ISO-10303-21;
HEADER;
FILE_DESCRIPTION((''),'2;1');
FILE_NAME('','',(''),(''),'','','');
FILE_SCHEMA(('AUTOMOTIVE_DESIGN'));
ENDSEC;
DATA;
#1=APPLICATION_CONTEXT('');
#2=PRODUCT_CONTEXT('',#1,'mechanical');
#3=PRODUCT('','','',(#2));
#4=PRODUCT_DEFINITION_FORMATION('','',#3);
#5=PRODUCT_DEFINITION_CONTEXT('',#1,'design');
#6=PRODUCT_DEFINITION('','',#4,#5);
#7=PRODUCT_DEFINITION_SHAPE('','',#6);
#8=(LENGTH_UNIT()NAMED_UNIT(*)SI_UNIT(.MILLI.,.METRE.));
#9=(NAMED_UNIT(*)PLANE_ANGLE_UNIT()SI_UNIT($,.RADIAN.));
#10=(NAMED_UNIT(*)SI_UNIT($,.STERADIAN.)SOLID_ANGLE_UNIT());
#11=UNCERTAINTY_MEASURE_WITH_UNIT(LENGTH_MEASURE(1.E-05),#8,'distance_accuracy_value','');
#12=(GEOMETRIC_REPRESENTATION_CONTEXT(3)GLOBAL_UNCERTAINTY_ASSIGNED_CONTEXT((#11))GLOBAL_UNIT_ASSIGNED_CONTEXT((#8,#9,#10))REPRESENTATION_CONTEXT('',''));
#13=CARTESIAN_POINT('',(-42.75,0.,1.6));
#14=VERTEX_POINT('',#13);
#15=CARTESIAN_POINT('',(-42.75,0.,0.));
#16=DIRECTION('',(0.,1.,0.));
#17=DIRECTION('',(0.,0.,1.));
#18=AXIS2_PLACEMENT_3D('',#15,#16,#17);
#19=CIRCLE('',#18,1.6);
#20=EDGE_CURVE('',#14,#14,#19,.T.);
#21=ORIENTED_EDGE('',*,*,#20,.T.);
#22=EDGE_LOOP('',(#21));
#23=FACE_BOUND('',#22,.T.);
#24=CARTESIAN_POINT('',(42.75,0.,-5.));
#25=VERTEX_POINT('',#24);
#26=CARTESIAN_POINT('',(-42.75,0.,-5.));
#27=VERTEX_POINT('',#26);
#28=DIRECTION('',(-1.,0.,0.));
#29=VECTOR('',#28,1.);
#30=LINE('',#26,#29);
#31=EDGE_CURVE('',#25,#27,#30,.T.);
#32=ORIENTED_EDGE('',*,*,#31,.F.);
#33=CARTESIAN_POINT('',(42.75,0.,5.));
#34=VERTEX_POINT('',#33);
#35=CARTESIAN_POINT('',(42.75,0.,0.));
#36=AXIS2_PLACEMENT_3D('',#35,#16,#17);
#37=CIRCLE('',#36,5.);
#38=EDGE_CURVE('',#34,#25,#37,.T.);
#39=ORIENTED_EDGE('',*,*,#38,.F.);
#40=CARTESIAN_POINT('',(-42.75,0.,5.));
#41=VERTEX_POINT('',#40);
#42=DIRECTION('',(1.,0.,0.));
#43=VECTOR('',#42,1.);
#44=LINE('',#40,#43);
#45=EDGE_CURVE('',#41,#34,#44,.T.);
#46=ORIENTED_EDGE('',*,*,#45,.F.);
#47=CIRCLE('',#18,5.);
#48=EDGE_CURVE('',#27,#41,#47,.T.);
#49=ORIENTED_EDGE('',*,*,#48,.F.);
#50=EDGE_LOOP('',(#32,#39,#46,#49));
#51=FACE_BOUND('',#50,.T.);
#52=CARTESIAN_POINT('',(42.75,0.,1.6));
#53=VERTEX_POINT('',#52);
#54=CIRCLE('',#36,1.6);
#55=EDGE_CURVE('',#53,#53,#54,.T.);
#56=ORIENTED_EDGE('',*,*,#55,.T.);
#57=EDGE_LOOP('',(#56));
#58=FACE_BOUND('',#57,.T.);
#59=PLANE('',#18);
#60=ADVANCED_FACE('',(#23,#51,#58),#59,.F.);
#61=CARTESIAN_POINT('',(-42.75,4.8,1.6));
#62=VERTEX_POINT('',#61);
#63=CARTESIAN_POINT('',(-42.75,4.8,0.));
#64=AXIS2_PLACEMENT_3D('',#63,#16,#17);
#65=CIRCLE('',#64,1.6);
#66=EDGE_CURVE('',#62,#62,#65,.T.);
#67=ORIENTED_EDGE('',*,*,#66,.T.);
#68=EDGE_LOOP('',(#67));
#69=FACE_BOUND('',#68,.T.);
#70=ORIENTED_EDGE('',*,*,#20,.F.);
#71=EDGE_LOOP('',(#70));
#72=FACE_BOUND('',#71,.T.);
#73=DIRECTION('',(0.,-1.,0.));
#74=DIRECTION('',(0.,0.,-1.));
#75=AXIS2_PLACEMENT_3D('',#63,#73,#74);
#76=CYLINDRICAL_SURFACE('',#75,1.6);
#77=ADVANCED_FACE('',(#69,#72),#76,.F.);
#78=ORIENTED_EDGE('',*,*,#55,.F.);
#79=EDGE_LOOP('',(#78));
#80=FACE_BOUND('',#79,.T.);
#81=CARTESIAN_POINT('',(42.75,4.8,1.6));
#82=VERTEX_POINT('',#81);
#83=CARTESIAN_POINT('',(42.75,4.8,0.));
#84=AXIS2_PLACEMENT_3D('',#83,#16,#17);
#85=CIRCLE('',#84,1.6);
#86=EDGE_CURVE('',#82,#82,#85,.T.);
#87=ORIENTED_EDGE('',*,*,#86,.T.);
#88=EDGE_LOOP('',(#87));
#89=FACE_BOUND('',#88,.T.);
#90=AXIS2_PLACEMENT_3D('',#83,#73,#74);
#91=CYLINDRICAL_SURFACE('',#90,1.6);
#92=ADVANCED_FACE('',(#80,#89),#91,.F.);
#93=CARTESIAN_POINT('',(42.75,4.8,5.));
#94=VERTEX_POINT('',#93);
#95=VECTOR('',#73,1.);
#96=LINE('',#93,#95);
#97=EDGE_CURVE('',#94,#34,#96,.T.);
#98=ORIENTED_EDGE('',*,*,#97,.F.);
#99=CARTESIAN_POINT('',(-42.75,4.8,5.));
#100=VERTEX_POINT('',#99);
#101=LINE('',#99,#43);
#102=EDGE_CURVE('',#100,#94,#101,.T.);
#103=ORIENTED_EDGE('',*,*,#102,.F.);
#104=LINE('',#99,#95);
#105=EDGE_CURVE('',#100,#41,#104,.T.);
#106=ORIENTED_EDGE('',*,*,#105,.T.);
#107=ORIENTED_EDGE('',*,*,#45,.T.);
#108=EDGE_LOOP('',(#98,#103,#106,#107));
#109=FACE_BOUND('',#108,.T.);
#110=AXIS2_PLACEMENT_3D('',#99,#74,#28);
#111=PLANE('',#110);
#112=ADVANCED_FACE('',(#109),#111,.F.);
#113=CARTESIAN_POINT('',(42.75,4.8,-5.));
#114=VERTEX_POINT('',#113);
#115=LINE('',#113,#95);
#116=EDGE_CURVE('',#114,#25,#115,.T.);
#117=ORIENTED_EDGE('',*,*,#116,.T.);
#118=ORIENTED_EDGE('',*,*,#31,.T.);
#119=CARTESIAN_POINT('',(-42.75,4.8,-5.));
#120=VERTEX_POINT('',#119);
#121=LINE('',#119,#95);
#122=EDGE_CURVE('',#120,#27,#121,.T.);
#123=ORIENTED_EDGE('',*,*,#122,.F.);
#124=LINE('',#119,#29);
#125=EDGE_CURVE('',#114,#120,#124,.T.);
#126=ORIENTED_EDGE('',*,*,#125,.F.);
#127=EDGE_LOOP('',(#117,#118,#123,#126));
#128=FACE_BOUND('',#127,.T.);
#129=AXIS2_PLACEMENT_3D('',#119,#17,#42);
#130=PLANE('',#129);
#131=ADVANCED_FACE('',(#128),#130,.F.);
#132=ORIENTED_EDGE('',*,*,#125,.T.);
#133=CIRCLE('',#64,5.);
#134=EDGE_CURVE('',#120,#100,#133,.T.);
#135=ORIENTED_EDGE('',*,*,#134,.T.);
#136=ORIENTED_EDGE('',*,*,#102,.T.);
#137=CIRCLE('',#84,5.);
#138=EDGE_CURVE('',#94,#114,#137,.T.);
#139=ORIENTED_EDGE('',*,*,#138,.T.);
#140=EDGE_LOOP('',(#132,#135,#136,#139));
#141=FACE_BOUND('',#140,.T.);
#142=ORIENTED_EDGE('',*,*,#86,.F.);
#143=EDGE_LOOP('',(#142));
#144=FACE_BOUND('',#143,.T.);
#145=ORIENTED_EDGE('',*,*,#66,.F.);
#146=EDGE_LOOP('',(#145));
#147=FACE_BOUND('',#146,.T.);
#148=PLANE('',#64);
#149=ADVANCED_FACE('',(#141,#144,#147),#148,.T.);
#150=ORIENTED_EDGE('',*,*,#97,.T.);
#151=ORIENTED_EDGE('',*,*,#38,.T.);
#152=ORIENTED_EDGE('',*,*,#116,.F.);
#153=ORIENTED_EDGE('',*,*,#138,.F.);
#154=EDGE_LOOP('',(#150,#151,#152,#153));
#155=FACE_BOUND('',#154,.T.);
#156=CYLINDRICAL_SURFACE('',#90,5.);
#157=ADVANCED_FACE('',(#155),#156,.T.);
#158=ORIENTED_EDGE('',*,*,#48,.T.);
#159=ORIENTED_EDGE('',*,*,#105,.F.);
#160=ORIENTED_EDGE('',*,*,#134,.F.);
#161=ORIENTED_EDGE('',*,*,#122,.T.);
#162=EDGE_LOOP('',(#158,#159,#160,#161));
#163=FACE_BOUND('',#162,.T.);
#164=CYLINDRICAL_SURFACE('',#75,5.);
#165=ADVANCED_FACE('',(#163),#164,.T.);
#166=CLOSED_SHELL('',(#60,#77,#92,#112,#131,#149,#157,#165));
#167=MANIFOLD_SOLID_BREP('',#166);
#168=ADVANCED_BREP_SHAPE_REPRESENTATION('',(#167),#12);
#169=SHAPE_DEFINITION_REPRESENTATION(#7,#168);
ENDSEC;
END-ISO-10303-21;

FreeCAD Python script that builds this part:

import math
import FreeCAD as App
import Part
import Sketcher
from FreeCAD import Vector

doc = App.newDocument("Part")
body = doc.addObject("PartDesign::Body", "Body")

sketch1 = body.newObject("Sketcher::SketchObject", "Sketch")
sketch1.AttachmentSupport = (doc.getObject("XZ_Plane"), [""])
sketch1.MapMode = "FlatFace"
sketch1.addGeometry(Part.LineSegment(Vector(42.8, -5, 0), Vector(-42.8, -5, 0)), False)
sketch1.addGeometry(Part.ArcOfCircle(Part.Circle(Vector(-42.8, 0, 0), Vector(0, 0, 1), 5), math.radians(90), math.radians(270)), False)
sketch1.addGeometry(Part.LineSegment(Vector(-42.8, 5, 0), Vector(42.8, 5, 0)), False)
sketch1.addGeometry(Part.ArcOfCircle(Part.Circle(Vector(42.8, 0, 0), Vector(0, 0, 1), 5), math.radians(-90), math.radians(90)), False)
sketch1.addGeometry(Part.Circle(Vector(42.8, 0, 0), Vector(0, 0, 1), 1.6), False)
sketch1.addGeometry(Part.Circle(Vector(-42.8, 0, 0), Vector(0, 0, 1), 1.6), False)
sketch1.addConstraint(Sketcher.Constraint("Tangent", 0, 2, 1, 2))
sketch1.addConstraint(Sketcher.Constraint("Tangent", 1, 1, 2, 1))
sketch1.addConstraint(Sketcher.Constraint("Tangent", 2, 2, 3, 2))
sketch1.addConstraint(Sketcher.Constraint("Tangent", 3, 1, 0, 1))
sketch1.addConstraint(Sketcher.Constraint("Horizontal", 0))
sketch1.addConstraint(Sketcher.Constraint("Horizontal", 2))
sketch1.addConstraint(Sketcher.Constraint("Coincident", 4, 3, 3, 3))
sketch1.addConstraint(Sketcher.Constraint("Coincident", 5, 3, 1, 3))
sketch1.addConstraint(Sketcher.Constraint("Equal", 4, 5))
sketch1.addConstraint(Sketcher.Constraint("Symmetric", 1, 3, 3, 3, -1, 1))
sketch1.addConstraint(Sketcher.Constraint("Radius", 1, 5.0))
sketch1.addConstraint(Sketcher.Constraint("Diameter", 4, 3.2))
sketch1.addConstraint(Sketcher.Constraint("DistanceX", 0, 2, 0, 1, 85.5))
pad1 = body.newObject("PartDesign::Pad", "Pad")
pad1.Profile = sketch1
pad1.Length = 4.8
pad1.Reversed = True

doc.recompute()
